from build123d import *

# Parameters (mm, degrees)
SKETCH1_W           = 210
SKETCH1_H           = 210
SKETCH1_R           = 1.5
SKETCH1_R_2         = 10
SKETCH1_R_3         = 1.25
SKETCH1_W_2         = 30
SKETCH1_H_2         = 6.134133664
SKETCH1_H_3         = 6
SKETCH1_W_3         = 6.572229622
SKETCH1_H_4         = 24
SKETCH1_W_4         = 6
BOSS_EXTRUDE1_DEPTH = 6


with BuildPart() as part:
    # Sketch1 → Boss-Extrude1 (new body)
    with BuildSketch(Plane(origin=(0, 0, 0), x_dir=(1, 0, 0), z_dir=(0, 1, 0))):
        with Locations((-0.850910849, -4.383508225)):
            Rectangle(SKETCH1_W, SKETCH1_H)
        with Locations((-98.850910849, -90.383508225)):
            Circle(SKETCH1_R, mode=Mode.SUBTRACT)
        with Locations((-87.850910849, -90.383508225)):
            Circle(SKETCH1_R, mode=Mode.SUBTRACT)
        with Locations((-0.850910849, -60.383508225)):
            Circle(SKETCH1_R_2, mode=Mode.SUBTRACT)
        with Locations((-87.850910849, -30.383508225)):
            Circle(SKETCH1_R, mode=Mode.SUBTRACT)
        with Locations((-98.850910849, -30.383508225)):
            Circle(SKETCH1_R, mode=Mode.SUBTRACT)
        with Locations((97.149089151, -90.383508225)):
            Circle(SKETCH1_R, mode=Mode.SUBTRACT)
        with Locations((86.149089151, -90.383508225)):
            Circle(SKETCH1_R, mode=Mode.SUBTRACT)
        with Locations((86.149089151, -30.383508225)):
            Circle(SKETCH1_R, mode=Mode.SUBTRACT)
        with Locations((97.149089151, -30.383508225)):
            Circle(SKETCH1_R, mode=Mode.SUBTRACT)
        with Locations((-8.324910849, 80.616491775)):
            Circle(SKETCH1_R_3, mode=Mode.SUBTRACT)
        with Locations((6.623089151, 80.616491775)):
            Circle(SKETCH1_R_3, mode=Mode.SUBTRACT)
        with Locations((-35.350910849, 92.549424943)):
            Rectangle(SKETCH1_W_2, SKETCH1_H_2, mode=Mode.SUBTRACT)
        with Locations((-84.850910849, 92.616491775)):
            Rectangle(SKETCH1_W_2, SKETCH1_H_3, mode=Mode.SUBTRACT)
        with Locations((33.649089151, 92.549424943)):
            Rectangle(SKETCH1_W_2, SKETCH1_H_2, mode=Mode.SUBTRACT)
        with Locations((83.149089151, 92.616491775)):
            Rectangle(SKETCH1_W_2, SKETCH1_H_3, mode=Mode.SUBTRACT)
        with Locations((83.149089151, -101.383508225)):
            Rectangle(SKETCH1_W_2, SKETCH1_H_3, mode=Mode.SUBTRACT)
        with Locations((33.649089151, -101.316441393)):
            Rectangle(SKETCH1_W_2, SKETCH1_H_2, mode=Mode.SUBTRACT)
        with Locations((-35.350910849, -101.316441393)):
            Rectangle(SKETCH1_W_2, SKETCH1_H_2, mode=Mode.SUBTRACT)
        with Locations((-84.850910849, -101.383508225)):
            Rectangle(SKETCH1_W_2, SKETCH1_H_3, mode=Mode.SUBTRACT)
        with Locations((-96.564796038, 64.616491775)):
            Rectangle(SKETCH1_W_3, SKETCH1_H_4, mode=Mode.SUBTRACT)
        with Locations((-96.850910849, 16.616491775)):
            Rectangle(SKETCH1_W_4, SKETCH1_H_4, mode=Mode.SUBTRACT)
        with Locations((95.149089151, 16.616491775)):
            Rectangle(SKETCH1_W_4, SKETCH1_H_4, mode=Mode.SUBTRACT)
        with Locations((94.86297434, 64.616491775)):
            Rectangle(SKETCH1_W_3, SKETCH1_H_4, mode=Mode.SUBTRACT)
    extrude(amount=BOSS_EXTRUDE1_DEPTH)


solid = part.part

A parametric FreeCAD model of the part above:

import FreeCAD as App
import Part
import Sketcher
from FreeCAD import Vector
Q = App.Units.Quantity

doc = App.newDocument("Part")
body = doc.addObject("PartDesign::Body", "Body")

sketch1 = body.newObject("Sketcher::SketchObject", "Sketch")
sketch1.AttachmentSupport = (doc.getObject("XZ_Plane"), [""])
sketch1.MapMode = "FlatFace"
sketch1.addGeometry([
    Part.LineSegment(Vector(-105.850911, -100.616492, 0), Vector(-105.850911, 109.383508, 0)),
    Part.LineSegment(Vector(-105.850911, 109.383508, 0), Vector(104.149089, 109.383508, 0)),
    Part.LineSegment(Vector(104.149089, 109.383508, 0), Vector(104.149089, -100.616492, 0)),
    Part.LineSegment(Vector(104.149089, -100.616492, 0), Vector(-105.850911, -100.616492, 0)),
    Part.LineSegment(Vector(-69.850911, 104.383508, 0), Vector(-99.850911, 104.383508, 0)),
    Part.LineSegment(Vector(-99.850911, 104.383508, 0), Vector(-99.850911, 98.383508, 0)),
    Part.LineSegment(Vector(-99.850911, 98.383508, 0), Vector(-69.850911, 98.383508, 0)),
    Part.LineSegment(Vector(-69.850911, 98.383508, 0), Vector(-69.850911, 104.383508, 0)),
    Part.Circle(Vector(-98.850911, 90.383508, 0), Vector(0, 0, 1), 1.5),
    Part.Circle(Vector(-87.850911, 90.383508, 0), Vector(0, 0, 1), 1.5),
    Part.LineSegment(Vector(-20.350911, 104.383508, 0), Vector(-50.350911, 104.383508, 0)),
    Part.LineSegment(Vector(-50.350911, 104.383508, 0), Vector(-50.350911, 98.249375, 0)),
    Part.LineSegment(Vector(-50.350911, 98.249375, 0), Vector(-20.350911, 98.249375, 0)),
    Part.LineSegment(Vector(-20.350911, 98.249375, 0), Vector(-20.350911, 104.383508, 0)),
    Part.Circle(Vector(-98.850911, 30.383508, 0), Vector(0, 0, 1), 1.5),
    Part.Circle(Vector(-87.850911, 30.383508, 0), Vector(0, 0, 1), 1.5),
    Part.LineSegment(Vector(48.649089, 104.383508, 0), Vector(18.649089, 104.383508, 0)),
    Part.LineSegment(Vector(18.649089, 104.383508, 0), Vector(18.649089, 98.249375, 0)),
    Part.LineSegment(Vector(18.649089, 98.249375, 0), Vector(48.649089, 98.249375, 0)),
    Part.LineSegment(Vector(48.649089, 98.249375, 0), Vector(48.649089, 104.383508, 0)),
    Part.Circle(Vector(-0.850911, 60.383508, 0), Vector(0, 0, 1), 10),
    Part.LineSegment(Vector(98.149089, 104.383508, 0), Vector(68.149089, 104.383508, 0)),
    Part.LineSegment(Vector(68.149089, 104.383508, 0), Vector(68.149089, 98.383508, 0)),
    Part.LineSegment(Vector(68.149089, 98.383508, 0), Vector(98.149089, 98.383508, 0)),
    Part.LineSegment(Vector(98.149089, 98.383508, 0), Vector(98.149089, 104.383508, 0)),
    Part.Circle(Vector(86.149089, 90.383508, 0), Vector(0, 0, 1), 1.5),
    Part.Circle(Vector(97.149089, 90.383508, 0), Vector(0, 0, 1), 1.5),
    Part.Circle(Vector(86.149089, 30.383508, 0), Vector(0, 0, 1), 1.5),
    Part.Circle(Vector(97.149089, 30.383508, 0), Vector(0, 0, 1), 1.5),
    Part.LineSegment(Vector(-93.850911, -4.616492, 0), Vector(-99.850911, -4.616492, 0)),
    Part.LineSegment(Vector(-99.850911, -4.616492, 0), Vector(-99.850911, -28.616492, 0)),
    Part.LineSegment(Vector(-99.850911, -28.616492, 0), Vector(-93.850911, -28.616492, 0)),
    Part.LineSegment(Vector(-93.850911, -28.616492, 0), Vector(-93.850911, -4.616492, 0)),
    Part.LineSegment(Vector(-93.278681, -52.616492, 0), Vector(-99.850911, -52.616492, 0)),
    Part.LineSegment(Vector(-99.850911, -52.616492, 0), Vector(-99.850911, -76.616492, 0)),
    Part.LineSegment(Vector(-99.850911, -76.616492, 0), Vector(-93.278681, -76.616492, 0)),
    Part.LineSegment(Vector(-93.278681, -76.616492, 0), Vector(-93.278681, -52.616492, 0)),
    Part.LineSegment(Vector(-69.850911, -89.616492, 0), Vector(-99.850911, -89.616492, 0)),
    Part.LineSegment(Vector(-99.850911, -89.616492, 0), Vector(-99.850911, -95.616492, 0)),
    Part.LineSegment(Vector(-99.850911, -95.616492, 0), Vector(-69.850911, -95.616492, 0)),
    Part.LineSegment(Vector(-69.850911, -95.616492, 0), Vector(-69.850911, -89.616492, 0)),
    Part.LineSegment(Vector(-20.350911, -89.482358, 0), Vector(-50.350911, -89.482358, 0)),
    Part.LineSegment(Vector(-50.350911, -89.482358, 0), Vector(-50.350911, -95.616492, 0)),
    Part.LineSegment(Vector(-50.350911, -95.616492, 0), Vector(-20.350911, -95.616492, 0)),
    Part.LineSegment(Vector(-20.350911, -95.616492, 0), Vector(-20.350911, -89.482358, 0)),
    Part.Circle(Vector(-8.324911, -80.616492, 0), Vector(0, 0, 1), 1.25),
    Part.LineSegment(Vector(98.149089, -4.616492, 0), Vector(92.149089, -4.616492, 0)),
    Part.LineSegment(Vector(92.149089, -4.616492, 0), Vector(92.149089, -28.616492, 0)),
    Part.LineSegment(Vector(92.149089, -28.616492, 0), Vector(98.149089, -28.616492, 0)),
    Part.LineSegment(Vector(98.149089, -28.616492, 0), Vector(98.149089, -4.616492, 0)),
    Part.Circle(Vector(6.623089, -80.616492, 0), Vector(0, 0, 1), 1.25),
    Part.LineSegment(Vector(48.649089, -89.482358, 0), Vector(18.649089, -89.482358, 0)),
    Part.LineSegment(Vector(18.649089, -89.482358, 0), Vector(18.649089, -95.616492, 0)),
    Part.LineSegment(Vector(18.649089, -95.616492, 0), Vector(48.649089, -95.616492, 0)),
    Part.LineSegment(Vector(48.649089, -95.616492, 0), Vector(48.649089, -89.482358, 0)),
    Part.LineSegment(Vector(98.149089, -52.616492, 0), Vector(91.57686, -52.616492, 0)),
    Part.LineSegment(Vector(91.57686, -52.616492, 0), Vector(91.57686, -76.616492, 0)),
    Part.LineSegment(Vector(91.57686, -76.616492, 0), Vector(98.149089, -76.616492, 0)),
    Part.LineSegment(Vector(98.149089, -76.616492, 0), Vector(98.149089, -52.616492, 0)),
    Part.LineSegment(Vector(98.149089, -89.616492, 0), Vector(68.149089, -89.616492, 0)),
    Part.LineSegment(Vector(68.149089, -89.616492, 0), Vector(68.149089, -95.616492, 0)),
    Part.LineSegment(Vector(68.149089, -95.616492, 0), Vector(98.149089, -95.616492, 0)),
    Part.LineSegment(Vector(98.149089, -95.616492, 0), Vector(98.149089, -89.616492, 0)),
], False)
sketch1.addConstraint([
    Sketcher.Constraint("Coincident", 0, 2, 1, 1),
    Sketcher.Constraint("Coincident", 1, 2, 2, 1),
    Sketcher.Constraint("Coincident", 2, 2, 3, 1),
    Sketcher.Constraint("Coincident", 3, 2, 0, 1),
    Sketcher.Constraint("Coincident", 4, 2, 5, 1),
    Sketcher.Constraint("Coincident", 5, 2, 6, 1),
    Sketcher.Constraint("Coincident", 6, 2, 7, 1),
    Sketcher.Constraint("Coincident", 7, 2, 4, 1),
    Sketcher.Constraint("Coincident", 10, 2, 11, 1),
    Sketcher.Constraint("Coincident", 11, 2, 12, 1),
    Sketcher.Constraint("Coincident", 12, 2, 13, 1),
    Sketcher.Constraint("Coincident", 13, 2, 10, 1),
    Sketcher.Constraint("Coincident", 16, 2, 17, 1),
    Sketcher.Constraint("Coincident", 17, 2, 18, 1),
    Sketcher.Constraint("Coincident", 18, 2, 19, 1),
    Sketcher.Constraint("Coincident", 19, 2, 16, 1),
    Sketcher.Constraint("Coincident", 21, 2, 22, 1),
    Sketcher.Constraint("Coincident", 22, 2, 23, 1),
    Sketcher.Constraint("Coincident", 23, 2, 24, 1),
    Sketcher.Constraint("Coincident", 24, 2, 21, 1),
    Sketcher.Constraint("Coincident", 29, 2, 30, 1),
    Sketcher.Constraint("Coincident", 30, 2, 31, 1),
    Sketcher.Constraint("Coincident", 31, 2, 32, 1),
    Sketcher.Constraint("Coincident", 32, 2, 29, 1),
    Sketcher.Constraint("Coincident", 33, 2, 34, 1),
    Sketcher.Constraint("Coincident", 34, 2, 35, 1),
    Sketcher.Constraint("Coincident", 35, 2, 36, 1),
    Sketcher.Constraint("Coincident", 36, 2, 33, 1),
    Sketcher.Constraint("Coincident", 37, 2, 38, 1),
    Sketcher.Constraint("Coincident", 38, 2, 39, 1),
    Sketcher.Constraint("Coincident", 39, 2, 40, 1),
    Sketcher.Constraint("Coincident", 40, 2, 37, 1),
    Sketcher.Constraint("Coincident", 41, 2, 42, 1),
    Sketcher.Constraint("Coincident", 42, 2, 43, 1),
    Sketcher.Constraint("Coincident", 43, 2, 44, 1),
    Sketcher.Constraint("Coincident", 44, 2, 41, 1),
    Sketcher.Constraint("Coincident", 46, 2, 47, 1),
    Sketcher.Constraint("Coincident", 47, 2, 48, 1),
    Sketcher.Constraint("Coincident", 48, 2, 49, 1),
    Sketcher.Constraint("Coincident", 49, 2, 46, 1),
    Sketcher.Constraint("Coincident", 51, 2, 52, 1),
    Sketcher.Constraint("Coincident", 52, 2, 53, 1),
    Sketcher.Constraint("Coincident", 53, 2, 54, 1),
    Sketcher.Constraint("Coincident", 54, 2, 51, 1),
    Sketcher.Constraint("Coincident", 55, 2, 56, 1),
    Sketcher.Constraint("Coincident", 56, 2, 57, 1),
    Sketcher.Constraint("Coincident", 57, 2, 58, 1),
    Sketcher.Constraint("Coincident", 58, 2, 55, 1),
    Sketcher.Constraint("Coincident", 59, 2, 60, 1),
    Sketcher.Constraint("Coincident", 60, 2, 61, 1),
    Sketcher.Constraint("Coincident", 61, 2, 62, 1),
    Sketcher.Constraint("Coincident", 62, 2, 59, 1),
    Sketcher.Constraint("Vertical", 0),
    Sketcher.Constraint("Horizontal", 1),
    Sketcher.Constraint("Vertical", 2),
    Sketcher.Constraint("Horizontal", 3),
    Sketcher.Constraint("Horizontal", 4),
    Sketcher.Constraint("Vertical", 5),
    Sketcher.Constraint("Horizontal", 6),
    Sketcher.Constraint("Vertical", 7),
    Sketcher.Constraint("Horizontal", 10),
    Sketcher.Constraint("Vertical", 11),
    Sketcher.Constraint("Horizontal", 12),
    Sketcher.Constraint("Vertical", 13),
    Sketcher.Constraint("Horizontal", 16),
    Sketcher.Constraint("Vertical", 17),
    Sketcher.Constraint("Horizontal", 18),
    Sketcher.Constraint("Vertical", 19),
    Sketcher.Constraint("Horizontal", 21),
    Sketcher.Constraint("Vertical", 22),
    Sketcher.Constraint("Horizontal", 23),
    Sketcher.Constraint("Vertical", 24),
    Sketcher.Constraint("Horizontal", 29),
    Sketcher.Constraint("Vertical", 30),
    Sketcher.Constraint("Horizontal", 31),
    Sketcher.Constraint("Vertical", 32),
    Sketcher.Constraint("Horizontal", 33),
    Sketcher.Constraint("Vertical", 34),
    Sketcher.Constraint("Horizontal", 35),
    Sketcher.Constraint("Vertical", 36),
    Sketcher.Constraint("Horizontal", 37),
    Sketcher.Constraint("Vertical", 38),
    Sketcher.Constraint("Horizontal", 39),
    Sketcher.Constraint("Vertical", 40),
    Sketcher.Constraint("Horizontal", 41),
    Sketcher.Constraint("Vertical", 42),
    Sketcher.Constraint("Horizontal", 43),
    Sketcher.Constraint("Vertical", 44),
    Sketcher.Constraint("Horizontal", 46),
    Sketcher.Constraint("Vertical", 47),
    Sketcher.Constraint("Horizontal", 48),
    Sketcher.Constraint("Vertical", 49),
    Sketcher.Constraint("Horizontal", 51),
    Sketcher.Constraint("Vertical", 52),
    Sketcher.Constraint("Horizontal", 53),
    Sketcher.Constraint("Vertical", 54),
    Sketcher.Constraint("Horizontal", 55),
    Sketcher.Constraint("Vertical", 56),
    Sketcher.Constraint("Horizontal", 57),
    Sketcher.Constraint("Vertical", 58),
    Sketcher.Constraint("Horizontal", 59),
    Sketcher.Constraint("Vertical", 60),
    Sketcher.Constraint("Horizontal", 61),
    Sketcher.Constraint("Vertical", 62),
    Sketcher.Constraint("Equal", 8, 9),
    Sketcher.Constraint("Equal", 9, 14),
    Sketcher.Constraint("Equal", 14, 15),
    Sketcher.Constraint("Equal", 15, 25),
    Sketcher.Constraint("Equal", 25, 26),
    Sketcher.Constraint("Equal", 26, 27),
    Sketcher.Constraint("Equal", 27, 28),
    Sketcher.Constraint("Equal", 45, 50),
    Sketcher.Constraint("Horizontal", 8, 3, 9, 3),
    Sketcher.Constraint("Horizontal", 14, 3, 15, 3),
    Sketcher.Constraint("Horizontal", 9, 3, 25, 3),
    Sketcher.Constraint("Horizontal", 25, 3, 26, 3),
    Sketcher.Constraint("Horizontal", 15, 3, 27, 3),
    Sketcher.Constraint("Horizontal", 27, 3, 28, 3),
    Sketcher.Constraint("Horizontal", 45, 3, 50, 3),
    Sketcher.Constraint("Horizontal", 7, 2, 10, 2),
    Sketcher.Constraint("Horizontal", 13, 2, 16, 2),
    Sketcher.Constraint("Horizontal", 12, 2, 17, 2),
    Sketcher.Constraint("Horizontal", 19, 2, 21, 2),
    Sketcher.Constraint("Horizontal", 6, 2, 22, 2),
    Sketcher.Constraint("Horizontal", 39, 2, 42, 2),
    Sketcher.Constraint("Horizontal", 32, 2, 46, 2),
    Sketcher.Constraint("Horizontal", 31, 2, 47, 2),
    Sketcher.Constraint("Horizontal", 44, 2, 51, 2),
    Sketcher.Constraint("Horizontal", 43, 2, 52, 2),
    Sketcher.Constraint("Horizontal", 36, 2, 55, 2),
    Sketcher.Constraint("Horizontal", 35, 2, 56, 2),
    Sketcher.Constraint("Horizontal", 40, 2, 59, 2),
    Sketcher.Constraint("Horizontal", 53, 2, 60, 2),
    Sketcher.Constraint("Vertical", 8, 3, 14, 3),
    Sketcher.Constraint("Vertical", 9, 3, 15, 3),
    Sketcher.Constraint("Vertical", 25, 3, 27, 3),
    Sketcher.Constraint("Vertical", 26, 3, 28, 3),
    Sketcher.Constraint("Vertical", 5, 2, 29, 2),
    Sketcher.Constraint("Vertical", 30, 2, 33, 2),
    Sketcher.Constraint("Vertical", 34, 2, 37, 2),
    Sketcher.Constraint("Vertical", 7, 2, 39, 2),
    Sketcher.Constraint("Vertical", 11, 2, 41, 2),
    Sketcher.Constraint("Vertical", 13, 2, 43, 2),
    Sketcher.Constraint("Vertical", 24, 2, 48, 2),
    Sketcher.Constraint("Vertical", 17, 2, 51, 2),
    Sketcher.Constraint("Vertical", 19, 2, 53, 2),
    Sketcher.Constraint("Vertical", 49, 2, 57, 2),
    Sketcher.Constraint("Vertical", 22, 2, 59, 2),
    Sketcher.Constraint("Vertical", 58, 2, 61, 2),
    Sketcher.Constraint("Equal", 6, 10),
    Sketcher.Constraint("Equal", 12, 16),
    Sketcher.Constraint("Equal", 18, 21),
    Sketcher.Constraint("Equal", 31, 46),
    Sketcher.Constraint("Equal", 35, 55),
    Sketcher.Constraint("Equal", 3, 0),
    Sketcher.Constraint("Equal", 48, 5),
    Sketcher.Constraint("Equal", 32, 34),
    Sketcher.Constraint("Equal", 24, 38),
    Sketcher.Constraint("Equal", 19, 42),
    Sketcher.Constraint("Diameter", 8, Q("3 mm")),
    Sketcher.Constraint("Diameter", 20, Q("20 mm")),
    Sketcher.Constraint("Diameter", 45, Q("2.5 mm")),
    Sketcher.Constraint("DistanceX", 1, 1, 1, 2, Q("210 mm")),
    Sketcher.Constraint("DistanceX", 4, 2, 4, 1, Q("30 mm")),
    Sketcher.Constraint("DistanceX", 29, 2, 29, 1, Q("6 mm")),
    Sketcher.Constraint("DistanceY", 30, 2, 30, 1, Q("24 mm")),
    Sketcher.Constraint("DistanceX", 33, 2, 33, 1, Q("6.57223 mm")),
    Sketcher.Constraint("DistanceY", 11, 2, 11, 1, Q("6.134134 mm")),
    Sketcher.Constraint("DistanceX", 8, 3, -1, 1, Q("98.850911 mm")),
    Sketcher.Constraint("DistanceY", -1, 1, 8, 3, Q("90.383508 mm")),
    Sketcher.Constraint("DistanceX", 9, 3, -1, 1, Q("87.850911 mm")),
    Sketcher.Constraint("DistanceY", -1, 1, 14, 3, Q("30.383508 mm")),
    Sketcher.Constraint("DistanceX", 20, 3, -1, 1, Q("0.850911 mm")),
    Sketcher.Constraint("DistanceY", -1, 1, 20, 3, Q("60.383508 mm")),
    Sketcher.Constraint("DistanceX", -1, 1, 25, 3, Q("86.149089 mm")),
    Sketcher.Constraint("DistanceX", -1, 1, 26, 3, Q("97.149089 mm")),
    Sketcher.Constraint("DistanceX", 45, 3, -1, 1, Q("8.324911 mm")),
    Sketcher.Constraint("DistanceY", 45, 3, -1, 1, Q("80.616492 mm")),
    Sketcher.Constraint("DistanceX", -1, 1, 50, 3, Q("6.623089 mm")),
    Sketcher.Constraint("DistanceX", 0, 2, -1, 1, Q("105.850911 mm")),
    Sketcher.Constraint("DistanceY", -1, 1, 0, 2, Q("109.383508 mm")),
    Sketcher.Constraint("DistanceX", 4, 2, -1, 1, Q("99.850911 mm")),
    Sketcher.Constraint("DistanceY", -1, 1, 4, 2, Q("104.383508 mm")),
    Sketcher.Constraint("DistanceX", 10, 2, -1, 1, Q("50.350911 mm")),
    Sketcher.Constraint("DistanceX", -1, 1, 16, 2, Q("18.649089 mm")),
    Sketcher.Constraint("DistanceX", -1, 1, 21, 2, Q("68.149089 mm")),
    Sketcher.Constraint("DistanceY", 29, 2, -1, 1, Q("4.616492 mm")),
    Sketcher.Constraint("DistanceY", 33, 2, -1, 1, Q("52.616492 mm")),
    Sketcher.Constraint("DistanceY", 37, 2, -1, 1, Q("89.616492 mm")),
])
pad1 = body.newObject("PartDesign::Pad", "Pad")
pad1.Profile = sketch1
pad1.Length = 6
pad1.Reversed = True

doc.recompute()
